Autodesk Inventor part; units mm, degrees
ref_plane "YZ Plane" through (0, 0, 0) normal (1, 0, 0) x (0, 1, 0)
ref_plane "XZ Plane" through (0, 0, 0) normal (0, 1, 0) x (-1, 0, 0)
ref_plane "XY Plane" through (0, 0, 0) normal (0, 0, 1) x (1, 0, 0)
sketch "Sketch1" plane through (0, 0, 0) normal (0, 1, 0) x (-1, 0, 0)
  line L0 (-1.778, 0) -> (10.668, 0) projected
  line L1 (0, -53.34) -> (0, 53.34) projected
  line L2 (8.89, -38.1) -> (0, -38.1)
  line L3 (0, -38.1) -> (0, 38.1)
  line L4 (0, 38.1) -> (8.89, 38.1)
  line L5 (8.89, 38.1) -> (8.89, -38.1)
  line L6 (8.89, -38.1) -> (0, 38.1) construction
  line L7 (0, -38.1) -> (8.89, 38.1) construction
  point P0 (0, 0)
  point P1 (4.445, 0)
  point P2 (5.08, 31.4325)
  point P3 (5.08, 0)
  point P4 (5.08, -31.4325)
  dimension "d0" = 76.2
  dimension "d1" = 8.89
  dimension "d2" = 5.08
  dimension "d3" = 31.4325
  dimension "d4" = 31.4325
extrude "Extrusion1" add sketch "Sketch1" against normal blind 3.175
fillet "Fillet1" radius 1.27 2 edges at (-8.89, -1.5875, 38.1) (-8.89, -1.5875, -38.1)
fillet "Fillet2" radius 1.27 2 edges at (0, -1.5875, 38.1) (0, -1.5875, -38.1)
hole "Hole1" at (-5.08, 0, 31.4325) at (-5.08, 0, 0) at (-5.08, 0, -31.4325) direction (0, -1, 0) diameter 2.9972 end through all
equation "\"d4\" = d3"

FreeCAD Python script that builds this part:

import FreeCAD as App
import Part
import Sketcher

V = App.Vector
Q = App.Units.Quantity


def edges_at(feature, points):
    """Names of the edges that pass closest to the given points."""
    edges = feature.Shape.Edges
    near = lambda p: min(range(len(edges)), key=lambda i: edges[i].distToShape(Part.Vertex(*p))[0])
    return sorted({f"Edge{near(p) + 1}" for p in points})

doc = App.newDocument("Part")
body = doc.addObject("PartDesign::Body", "Body")

sketch1 = doc.addObject("Sketcher::SketchObject", "Sketch")
body.addObject(sketch1)
sketch1.AttachmentSupport = (doc.XZ_Plane, [""])
sketch1.MapMode = "FlatFace"
sketch1.addGeometry([
    Part.LineSegment(V(0, 38, 0), V(0, -38, 0)),
    Part.LineSegment(V(0, -38, 0), V(-9, -38, 0)),
    Part.LineSegment(V(-9, -38, 0), V(-9, 38, 0)),
    Part.LineSegment(V(-9, 38, 0), V(0, 38, 0)),
], False)
sketch1.addConstraint([
    Sketcher.Constraint("Coincident", 0, 2, 1, 1),
    Sketcher.Constraint("Coincident", 1, 2, 2, 1),
    Sketcher.Constraint("Coincident", 2, 2, 3, 1),
    Sketcher.Constraint("Coincident", 3, 2, 0, 1),
    Sketcher.Constraint("Vertical", 0),
    Sketcher.Constraint("Horizontal", 1),
    Sketcher.Constraint("Vertical", 2),
    Sketcher.Constraint("Horizontal", 3),
    Sketcher.Constraint("Symmetric", 0, 2, 3, 2, -1, 1),
    Sketcher.Constraint("DistanceY", 0, 2, 0, 1, Q("3 in")),
    Sketcher.Constraint("DistanceX", 1, 2, 1, 1, Q("0.35 in")),
])
pad1 = doc.addObject("PartDesign::Pad", "Pad")
body.addObject(pad1)
pad1.Profile = sketch1
pad1.Length = Q("0.125 in")
doc.recompute()

fillet = doc.addObject("PartDesign::Fillet", "Fillet")
body.addObject(fillet)
fillet.Base = (pad1, edges_at(pad1, [(-8.89, -1.587, 38.1), (-8.89, -1.587, -38.1)]))
fillet.Radius = Q("0.05 in")
doc.recompute()

fillet2 = doc.addObject("PartDesign::Fillet", "Fillet001")
body.addObject(fillet2)
fillet2.Base = (fillet, edges_at(fillet, [(0, -1.587, 38.1), (0, -1.587, -38.1)]))
fillet2.Radius = Q("0.05 in")

sketch2 = doc.addObject("Sketcher::SketchObject", "Sketch001")
body.addObject(sketch2)
sketch2.AttachmentSupport = (doc.XZ_Plane, [""])
sketch2.MapMode = "FlatFace"
sketch2.addGeometry([
    Part.Circle(V(-5.1, 31.4, 0), V(0, 0, 1), 1.5),
    Part.Circle(V(-5.1, 0, 0), V(0, 0, 1), 1.5),
    Part.Circle(V(-5.1, -31.4, 0), V(0, 0, 1), 1.5),
], False)
sketch2.addConstraint([
    Sketcher.Constraint("Equal", 0, 1),
    Sketcher.Constraint("Equal", 1, 2),
    Sketcher.Constraint("Symmetric", 0, 3, 2, 3, -1),
    Sketcher.Constraint("PointOnObject", 1, 3, -1),
    Sketcher.Constraint("Vertical", 0, 3, 1, 3),
    Sketcher.Constraint("Diameter", 0, Q("0.118 in")),
    Sketcher.Constraint("DistanceX", 0, 3, -1, 1, Q("0.2 in")),
    Sketcher.Constraint("DistanceY", 2, 3, 0, 3, Q("2.475 in")),
])
doc.recompute()
hole = doc.addObject("PartDesign::Hole", "Hole")
body.addObject(hole)
hole.Profile = sketch2
hole.ThreadType = "None"
hole.Diameter = Q("0.118 in")
hole.DepthType = "ThroughAll"
hole.Reversed = True

doc.recompute()
